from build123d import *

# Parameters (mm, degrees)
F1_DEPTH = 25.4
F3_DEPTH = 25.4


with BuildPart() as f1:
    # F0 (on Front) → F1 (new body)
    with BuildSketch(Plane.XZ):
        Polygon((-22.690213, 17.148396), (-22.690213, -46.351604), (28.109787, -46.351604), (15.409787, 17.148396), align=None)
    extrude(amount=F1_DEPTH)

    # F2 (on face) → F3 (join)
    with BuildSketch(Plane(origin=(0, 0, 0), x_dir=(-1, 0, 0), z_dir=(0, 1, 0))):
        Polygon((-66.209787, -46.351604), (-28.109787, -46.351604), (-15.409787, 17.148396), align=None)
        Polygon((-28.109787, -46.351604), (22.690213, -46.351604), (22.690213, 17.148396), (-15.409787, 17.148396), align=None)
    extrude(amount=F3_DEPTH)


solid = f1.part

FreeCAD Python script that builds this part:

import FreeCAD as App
import Part
import Sketcher
Q = App.Units.Quantity

doc = App.newDocument("Part")
params = doc.addObject("Spreadsheet::Sheet", "Params")
for row, (alias, value) in enumerate([
    ("sketch1_width", "2 in"),
    ("sketch1_width2", "1.5 in"),
    ("sketch1_height", "2.5 in"),
    ("pad1_length", "1 in"),
    ("sketch2_width", "3.5 in"),
    ("sketch2_width2", "1.5 in"),
    ("sketch2_height", "2.5 in"),
    ("pad2_length", "1 in"),
], start=1):
    params.set(f"A{row}", alias)
    params.set(f"B{row}", "=" + value)
    params.setAlias(f"B{row}", alias)

body = doc.addObject("PartDesign::Body", "Body")

# Sketch on XZ plane
sketch1 = body.newObject("Sketcher::SketchObject", "Sketch")
sketch1.AttachmentSupport = (doc.getObject("XZ_Plane"), [""])
sketch1.MapMode = "FlatFace"
sketch1.addGeometry([
    Part.LineSegment(App.Vector(-23, 17, 0), App.Vector(-23, -46, 0)),
    Part.LineSegment(App.Vector(-23, -46, 0), App.Vector(28, -46, 0)),
    Part.LineSegment(App.Vector(28, -46, 0), App.Vector(15, 17, 0)),
    Part.LineSegment(App.Vector(15, 17, 0), App.Vector(-23, 17, 0)),
], False)
sketch1.addConstraint([
    Sketcher.Constraint("Coincident", 0, 2, 1, 1),
    Sketcher.Constraint("Coincident", 1, 2, 2, 1),
    Sketcher.Constraint("Coincident", 2, 2, 3, 1),
    Sketcher.Constraint("Coincident", 3, 2, 0, 1),
    Sketcher.Constraint("Vertical", 0),
    Sketcher.Constraint("Horizontal", 1),
    Sketcher.Constraint("Horizontal", 3),
    Sketcher.Constraint("DistanceX", 1, 1, 1, 2, Q("2 in")),
    Sketcher.Constraint("DistanceX", 3, 2, 3, 1, Q("1.5 in")),
    Sketcher.Constraint("DistanceY", 0, 2, 0, 1, Q("2.5 in")),
    Sketcher.Constraint("DistanceX", 0, 2, -1, 1, 22.690213),
    Sketcher.Constraint("DistanceY", 0, 2, -1, 1, 46.351604),
])
sketch1.setExpression("Constraints[7]", "Params.sketch1_width")
sketch1.setExpression("Constraints[8]", "Params.sketch1_width2")
sketch1.setExpression("Constraints[9]", "Params.sketch1_height")
pad1 = body.newObject("PartDesign::Pad", "Pad")
pad1.Profile = sketch1
pad1.setExpression("Length", "Params.pad1_length")

# Sketch on XZ plane
sketch2 = body.newObject("Sketcher::SketchObject", "Sketch001")
sketch2.AttachmentSupport = (doc.getObject("XZ_Plane"), [""])
sketch2.MapMode = "FlatFace"
sketch2.addGeometry([
    Part.LineSegment(App.Vector(66, -46, 0), App.Vector(-23, -46, 0)),
    Part.LineSegment(App.Vector(-23, -46, 0), App.Vector(-23, 17, 0)),
    Part.LineSegment(App.Vector(-23, 17, 0), App.Vector(15, 17, 0)),
    Part.LineSegment(App.Vector(15, 17, 0), App.Vector(66, -46, 0)),
], False)
sketch2.addConstraint([
    Sketcher.Constraint("Coincident", 0, 2, 1, 1),
    Sketcher.Constraint("Coincident", 1, 2, 2, 1),
    Sketcher.Constraint("Coincident", 2, 2, 3, 1),
    Sketcher.Constraint("Coincident", 3, 2, 0, 1),
    Sketcher.Constraint("Horizontal", 0),
    Sketcher.Constraint("Vertical", 1),
    Sketcher.Constraint("Horizontal", 2),
    Sketcher.Constraint("DistanceX", 0, 2, 0, 1, Q("3.5 in")),
    Sketcher.Constraint("DistanceX", 2, 1, 2, 2, Q("1.5 in")),
    Sketcher.Constraint("DistanceY", 1, 1, 1, 2, Q("2.5 in")),
    Sketcher.Constraint("DistanceX", 0, 2, -1, 1, 22.690213),
    Sketcher.Constraint("DistanceY", 0, 2, -1, 1, 46.351604),
])
sketch2.setExpression("Constraints[7]", "Params.sketch2_width")
sketch2.setExpression("Constraints[8]", "Params.sketch2_width2")
sketch2.setExpression("Constraints[9]", "Params.sketch2_height")
pad2 = body.newObject("PartDesign::Pad", "Pad001")
pad2.Profile = sketch2
pad2.setExpression("Length", "Params.pad2_length")
pad2.Reversed = True

doc.recompute()
